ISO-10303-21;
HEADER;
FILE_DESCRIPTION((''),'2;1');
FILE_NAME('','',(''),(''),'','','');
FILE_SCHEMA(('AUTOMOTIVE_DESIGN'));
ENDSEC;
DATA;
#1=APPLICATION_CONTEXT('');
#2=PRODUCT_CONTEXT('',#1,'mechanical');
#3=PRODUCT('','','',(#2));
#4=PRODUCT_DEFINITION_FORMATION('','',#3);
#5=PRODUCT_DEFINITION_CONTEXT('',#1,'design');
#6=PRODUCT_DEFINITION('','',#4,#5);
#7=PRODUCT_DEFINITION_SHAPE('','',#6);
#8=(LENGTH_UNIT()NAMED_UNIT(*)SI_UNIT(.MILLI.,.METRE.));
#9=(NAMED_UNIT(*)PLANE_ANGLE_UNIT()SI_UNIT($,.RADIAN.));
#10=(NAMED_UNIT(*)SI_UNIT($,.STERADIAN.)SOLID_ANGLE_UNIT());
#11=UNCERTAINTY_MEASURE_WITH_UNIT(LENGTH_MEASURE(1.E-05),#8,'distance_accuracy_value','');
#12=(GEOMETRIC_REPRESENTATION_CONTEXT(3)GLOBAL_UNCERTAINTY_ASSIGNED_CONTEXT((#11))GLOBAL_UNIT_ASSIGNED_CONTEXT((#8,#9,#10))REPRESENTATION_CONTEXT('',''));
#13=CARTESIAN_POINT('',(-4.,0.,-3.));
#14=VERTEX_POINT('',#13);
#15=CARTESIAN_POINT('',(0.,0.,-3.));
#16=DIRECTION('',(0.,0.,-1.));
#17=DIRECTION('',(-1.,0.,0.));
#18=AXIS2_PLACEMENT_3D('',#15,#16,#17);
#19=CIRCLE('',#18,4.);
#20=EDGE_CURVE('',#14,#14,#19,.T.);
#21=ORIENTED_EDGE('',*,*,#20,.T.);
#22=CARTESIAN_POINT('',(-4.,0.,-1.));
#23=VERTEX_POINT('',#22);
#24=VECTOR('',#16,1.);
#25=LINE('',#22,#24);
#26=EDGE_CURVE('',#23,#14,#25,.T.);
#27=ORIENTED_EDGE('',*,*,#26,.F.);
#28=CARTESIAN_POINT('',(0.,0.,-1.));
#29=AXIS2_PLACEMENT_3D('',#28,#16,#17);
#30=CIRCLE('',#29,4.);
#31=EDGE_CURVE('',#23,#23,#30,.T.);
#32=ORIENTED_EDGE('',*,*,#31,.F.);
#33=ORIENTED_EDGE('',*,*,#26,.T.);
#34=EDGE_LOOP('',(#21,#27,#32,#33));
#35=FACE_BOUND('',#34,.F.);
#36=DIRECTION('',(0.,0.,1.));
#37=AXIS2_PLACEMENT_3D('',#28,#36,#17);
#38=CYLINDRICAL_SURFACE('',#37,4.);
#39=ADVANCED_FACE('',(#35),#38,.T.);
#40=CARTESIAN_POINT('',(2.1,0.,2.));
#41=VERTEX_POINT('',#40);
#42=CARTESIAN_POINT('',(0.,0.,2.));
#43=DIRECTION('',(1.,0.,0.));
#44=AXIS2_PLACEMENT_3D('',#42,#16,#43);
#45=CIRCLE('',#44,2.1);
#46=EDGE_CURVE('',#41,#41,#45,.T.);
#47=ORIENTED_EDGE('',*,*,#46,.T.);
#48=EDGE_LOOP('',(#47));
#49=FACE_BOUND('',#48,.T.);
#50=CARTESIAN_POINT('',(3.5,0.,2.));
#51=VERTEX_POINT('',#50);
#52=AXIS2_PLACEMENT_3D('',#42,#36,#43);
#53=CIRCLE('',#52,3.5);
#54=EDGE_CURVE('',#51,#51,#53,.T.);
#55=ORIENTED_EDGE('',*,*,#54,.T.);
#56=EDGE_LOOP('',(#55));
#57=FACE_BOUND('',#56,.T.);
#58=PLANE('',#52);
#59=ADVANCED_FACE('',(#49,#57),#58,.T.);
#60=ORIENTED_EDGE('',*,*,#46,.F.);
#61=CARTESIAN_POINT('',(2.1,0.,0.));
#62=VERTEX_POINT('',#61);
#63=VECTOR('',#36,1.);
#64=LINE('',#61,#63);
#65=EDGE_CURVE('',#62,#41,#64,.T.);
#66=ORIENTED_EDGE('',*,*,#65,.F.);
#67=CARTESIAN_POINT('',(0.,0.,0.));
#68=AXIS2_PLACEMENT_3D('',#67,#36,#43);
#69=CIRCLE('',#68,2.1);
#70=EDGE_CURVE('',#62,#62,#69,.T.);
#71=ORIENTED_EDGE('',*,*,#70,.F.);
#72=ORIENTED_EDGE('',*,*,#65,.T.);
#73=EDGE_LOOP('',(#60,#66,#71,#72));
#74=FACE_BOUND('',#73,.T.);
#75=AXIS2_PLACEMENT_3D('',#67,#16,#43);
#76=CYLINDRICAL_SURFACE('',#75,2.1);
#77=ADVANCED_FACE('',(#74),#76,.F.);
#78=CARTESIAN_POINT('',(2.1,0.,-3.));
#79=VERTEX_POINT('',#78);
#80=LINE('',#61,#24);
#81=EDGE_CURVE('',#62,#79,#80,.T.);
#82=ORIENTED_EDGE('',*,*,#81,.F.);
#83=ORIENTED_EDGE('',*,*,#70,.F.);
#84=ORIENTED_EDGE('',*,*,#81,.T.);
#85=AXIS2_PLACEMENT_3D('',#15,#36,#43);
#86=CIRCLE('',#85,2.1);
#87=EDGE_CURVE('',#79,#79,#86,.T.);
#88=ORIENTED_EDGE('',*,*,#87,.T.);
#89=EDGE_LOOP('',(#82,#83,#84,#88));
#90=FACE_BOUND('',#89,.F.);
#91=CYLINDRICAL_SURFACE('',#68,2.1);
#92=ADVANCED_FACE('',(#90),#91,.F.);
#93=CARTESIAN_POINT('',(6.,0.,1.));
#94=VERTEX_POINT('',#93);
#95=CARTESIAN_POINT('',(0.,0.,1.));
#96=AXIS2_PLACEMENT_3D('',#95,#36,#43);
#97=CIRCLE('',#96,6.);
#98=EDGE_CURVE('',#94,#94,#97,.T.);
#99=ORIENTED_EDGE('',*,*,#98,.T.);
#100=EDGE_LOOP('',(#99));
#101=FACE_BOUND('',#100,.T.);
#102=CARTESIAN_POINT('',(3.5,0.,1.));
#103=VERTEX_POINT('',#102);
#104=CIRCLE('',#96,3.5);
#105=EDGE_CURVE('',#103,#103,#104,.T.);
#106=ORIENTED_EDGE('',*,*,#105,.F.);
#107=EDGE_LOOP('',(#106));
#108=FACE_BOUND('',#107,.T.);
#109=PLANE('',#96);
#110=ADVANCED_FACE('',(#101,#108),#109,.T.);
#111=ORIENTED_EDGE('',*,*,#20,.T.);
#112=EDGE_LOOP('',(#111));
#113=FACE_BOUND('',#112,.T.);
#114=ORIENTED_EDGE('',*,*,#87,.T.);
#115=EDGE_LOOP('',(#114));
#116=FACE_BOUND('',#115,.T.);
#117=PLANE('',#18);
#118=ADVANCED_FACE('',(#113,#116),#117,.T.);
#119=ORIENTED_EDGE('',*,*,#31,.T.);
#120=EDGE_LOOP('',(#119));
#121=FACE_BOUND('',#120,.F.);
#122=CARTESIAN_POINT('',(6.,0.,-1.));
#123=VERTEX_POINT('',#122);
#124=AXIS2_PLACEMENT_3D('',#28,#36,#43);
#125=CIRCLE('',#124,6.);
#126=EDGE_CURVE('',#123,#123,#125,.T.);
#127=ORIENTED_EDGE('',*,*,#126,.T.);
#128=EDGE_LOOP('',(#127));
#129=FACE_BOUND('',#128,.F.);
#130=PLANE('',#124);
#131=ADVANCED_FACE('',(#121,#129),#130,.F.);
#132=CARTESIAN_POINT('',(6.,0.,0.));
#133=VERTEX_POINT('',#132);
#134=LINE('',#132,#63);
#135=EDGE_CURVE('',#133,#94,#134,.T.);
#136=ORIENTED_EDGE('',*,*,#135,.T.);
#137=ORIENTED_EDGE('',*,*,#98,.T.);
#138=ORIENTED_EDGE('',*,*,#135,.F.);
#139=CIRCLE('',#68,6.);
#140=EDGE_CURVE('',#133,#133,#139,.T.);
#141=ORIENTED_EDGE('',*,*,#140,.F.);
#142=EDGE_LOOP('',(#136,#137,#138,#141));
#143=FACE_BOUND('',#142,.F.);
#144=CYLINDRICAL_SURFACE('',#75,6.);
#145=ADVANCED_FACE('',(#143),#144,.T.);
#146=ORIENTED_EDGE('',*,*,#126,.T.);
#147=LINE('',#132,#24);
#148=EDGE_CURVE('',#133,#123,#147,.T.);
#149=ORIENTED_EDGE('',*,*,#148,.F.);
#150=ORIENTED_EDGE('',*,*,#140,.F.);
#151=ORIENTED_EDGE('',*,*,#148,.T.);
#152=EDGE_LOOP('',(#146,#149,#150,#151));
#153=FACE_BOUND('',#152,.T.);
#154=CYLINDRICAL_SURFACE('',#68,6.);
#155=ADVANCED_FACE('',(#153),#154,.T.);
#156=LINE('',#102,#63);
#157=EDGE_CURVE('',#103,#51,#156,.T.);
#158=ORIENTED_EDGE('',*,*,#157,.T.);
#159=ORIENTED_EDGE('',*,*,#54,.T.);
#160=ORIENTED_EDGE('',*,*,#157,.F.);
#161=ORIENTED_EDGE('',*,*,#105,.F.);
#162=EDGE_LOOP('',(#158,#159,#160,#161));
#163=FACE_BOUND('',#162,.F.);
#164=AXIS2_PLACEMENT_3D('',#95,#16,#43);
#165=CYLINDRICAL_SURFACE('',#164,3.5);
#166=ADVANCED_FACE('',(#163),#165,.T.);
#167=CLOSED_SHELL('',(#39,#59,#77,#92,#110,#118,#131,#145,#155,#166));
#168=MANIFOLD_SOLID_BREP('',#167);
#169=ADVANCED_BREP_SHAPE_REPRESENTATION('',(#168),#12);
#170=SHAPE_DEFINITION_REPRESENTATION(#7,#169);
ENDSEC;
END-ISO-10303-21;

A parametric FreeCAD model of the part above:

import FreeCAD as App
import Part
import Sketcher

doc = App.newDocument("Part")
body = doc.addObject("PartDesign::Body", "Body")

# Sketch on XY plane
sketch1 = body.newObject("Sketcher::SketchObject", "Sketch")
sketch1.AttachmentSupport = (doc.getObject("XY_Plane"), [""])
sketch1.MapMode = "FlatFace"
sketch1.addGeometry(Part.Circle(App.Vector(0, 0, 0), App.Vector(0, 0, 1), 6), False)
sketch1.addConstraint([
    Sketcher.Constraint("Coincident", 0, 3, -1, 1),
    Sketcher.Constraint("Diameter", 0, 12.0),
])
pad1 = body.newObject("PartDesign::Pad", "Pad")
pad1.Profile = sketch1
pad1.Length = 2
pad1.Midplane = True

# Sketch on XY plane
sketch2 = body.newObject("Sketcher::SketchObject", "Sketch001")
sketch2.AttachmentSupport = (doc.getObject("XY_Plane"), [""])
sketch2.MapMode = "FlatFace"
sketch2.AttachmentOffset = App.Placement(App.Vector(0, 0, -1), App.Rotation())
sketch2.addGeometry(Part.Circle(App.Vector(0, 0, 0), App.Vector(0, 0, 1), 4), False)
sketch2.addConstraint([
    Sketcher.Constraint("Coincident", 0, 3, -1, 1),
    Sketcher.Constraint("Diameter", 0, 8.0),
])
pad2 = body.newObject("PartDesign::Pad", "Pad001")
pad2.Profile = sketch2
pad2.Length = 2
pad2.Reversed = True

# Sketch on XY plane
sketch3 = body.newObject("Sketcher::SketchObject", "Sketch002")
sketch3.AttachmentSupport = (doc.getObject("XY_Plane"), [""])
sketch3.MapMode = "FlatFace"
sketch3.AttachmentOffset = App.Placement(App.Vector(0, 0, 1), App.Rotation())
sketch3.addGeometry(Part.Circle(App.Vector(0, 0, 0), App.Vector(0, 0, 1), 3.5), False)
sketch3.addConstraint([
    Sketcher.Constraint("Coincident", 0, 3, -1, 1),
    Sketcher.Constraint("Diameter", 0, 7.0),
])
pad3 = body.newObject("PartDesign::Pad", "Pad002")
pad3.Profile = sketch3
pad3.Length = 1

# Sketch on XY plane
sketch4 = body.newObject("Sketcher::SketchObject", "Sketch003")
sketch4.AttachmentSupport = (doc.getObject("XY_Plane"), [""])
sketch4.MapMode = "FlatFace"
sketch4.addGeometry(Part.Circle(App.Vector(0, 0, 0), App.Vector(0, 0, 1), 2.1), False)
sketch4.addConstraint([
    Sketcher.Constraint("Coincident", 0, 3, -1, 1),
    Sketcher.Constraint("Diameter", 0, 4.2),
])
pocket1 = body.newObject("PartDesign::Pocket", "Pocket")
pocket1.Profile = sketch4
pocket1.Length = 47
pocket1.Midplane = True

doc.recompute()
